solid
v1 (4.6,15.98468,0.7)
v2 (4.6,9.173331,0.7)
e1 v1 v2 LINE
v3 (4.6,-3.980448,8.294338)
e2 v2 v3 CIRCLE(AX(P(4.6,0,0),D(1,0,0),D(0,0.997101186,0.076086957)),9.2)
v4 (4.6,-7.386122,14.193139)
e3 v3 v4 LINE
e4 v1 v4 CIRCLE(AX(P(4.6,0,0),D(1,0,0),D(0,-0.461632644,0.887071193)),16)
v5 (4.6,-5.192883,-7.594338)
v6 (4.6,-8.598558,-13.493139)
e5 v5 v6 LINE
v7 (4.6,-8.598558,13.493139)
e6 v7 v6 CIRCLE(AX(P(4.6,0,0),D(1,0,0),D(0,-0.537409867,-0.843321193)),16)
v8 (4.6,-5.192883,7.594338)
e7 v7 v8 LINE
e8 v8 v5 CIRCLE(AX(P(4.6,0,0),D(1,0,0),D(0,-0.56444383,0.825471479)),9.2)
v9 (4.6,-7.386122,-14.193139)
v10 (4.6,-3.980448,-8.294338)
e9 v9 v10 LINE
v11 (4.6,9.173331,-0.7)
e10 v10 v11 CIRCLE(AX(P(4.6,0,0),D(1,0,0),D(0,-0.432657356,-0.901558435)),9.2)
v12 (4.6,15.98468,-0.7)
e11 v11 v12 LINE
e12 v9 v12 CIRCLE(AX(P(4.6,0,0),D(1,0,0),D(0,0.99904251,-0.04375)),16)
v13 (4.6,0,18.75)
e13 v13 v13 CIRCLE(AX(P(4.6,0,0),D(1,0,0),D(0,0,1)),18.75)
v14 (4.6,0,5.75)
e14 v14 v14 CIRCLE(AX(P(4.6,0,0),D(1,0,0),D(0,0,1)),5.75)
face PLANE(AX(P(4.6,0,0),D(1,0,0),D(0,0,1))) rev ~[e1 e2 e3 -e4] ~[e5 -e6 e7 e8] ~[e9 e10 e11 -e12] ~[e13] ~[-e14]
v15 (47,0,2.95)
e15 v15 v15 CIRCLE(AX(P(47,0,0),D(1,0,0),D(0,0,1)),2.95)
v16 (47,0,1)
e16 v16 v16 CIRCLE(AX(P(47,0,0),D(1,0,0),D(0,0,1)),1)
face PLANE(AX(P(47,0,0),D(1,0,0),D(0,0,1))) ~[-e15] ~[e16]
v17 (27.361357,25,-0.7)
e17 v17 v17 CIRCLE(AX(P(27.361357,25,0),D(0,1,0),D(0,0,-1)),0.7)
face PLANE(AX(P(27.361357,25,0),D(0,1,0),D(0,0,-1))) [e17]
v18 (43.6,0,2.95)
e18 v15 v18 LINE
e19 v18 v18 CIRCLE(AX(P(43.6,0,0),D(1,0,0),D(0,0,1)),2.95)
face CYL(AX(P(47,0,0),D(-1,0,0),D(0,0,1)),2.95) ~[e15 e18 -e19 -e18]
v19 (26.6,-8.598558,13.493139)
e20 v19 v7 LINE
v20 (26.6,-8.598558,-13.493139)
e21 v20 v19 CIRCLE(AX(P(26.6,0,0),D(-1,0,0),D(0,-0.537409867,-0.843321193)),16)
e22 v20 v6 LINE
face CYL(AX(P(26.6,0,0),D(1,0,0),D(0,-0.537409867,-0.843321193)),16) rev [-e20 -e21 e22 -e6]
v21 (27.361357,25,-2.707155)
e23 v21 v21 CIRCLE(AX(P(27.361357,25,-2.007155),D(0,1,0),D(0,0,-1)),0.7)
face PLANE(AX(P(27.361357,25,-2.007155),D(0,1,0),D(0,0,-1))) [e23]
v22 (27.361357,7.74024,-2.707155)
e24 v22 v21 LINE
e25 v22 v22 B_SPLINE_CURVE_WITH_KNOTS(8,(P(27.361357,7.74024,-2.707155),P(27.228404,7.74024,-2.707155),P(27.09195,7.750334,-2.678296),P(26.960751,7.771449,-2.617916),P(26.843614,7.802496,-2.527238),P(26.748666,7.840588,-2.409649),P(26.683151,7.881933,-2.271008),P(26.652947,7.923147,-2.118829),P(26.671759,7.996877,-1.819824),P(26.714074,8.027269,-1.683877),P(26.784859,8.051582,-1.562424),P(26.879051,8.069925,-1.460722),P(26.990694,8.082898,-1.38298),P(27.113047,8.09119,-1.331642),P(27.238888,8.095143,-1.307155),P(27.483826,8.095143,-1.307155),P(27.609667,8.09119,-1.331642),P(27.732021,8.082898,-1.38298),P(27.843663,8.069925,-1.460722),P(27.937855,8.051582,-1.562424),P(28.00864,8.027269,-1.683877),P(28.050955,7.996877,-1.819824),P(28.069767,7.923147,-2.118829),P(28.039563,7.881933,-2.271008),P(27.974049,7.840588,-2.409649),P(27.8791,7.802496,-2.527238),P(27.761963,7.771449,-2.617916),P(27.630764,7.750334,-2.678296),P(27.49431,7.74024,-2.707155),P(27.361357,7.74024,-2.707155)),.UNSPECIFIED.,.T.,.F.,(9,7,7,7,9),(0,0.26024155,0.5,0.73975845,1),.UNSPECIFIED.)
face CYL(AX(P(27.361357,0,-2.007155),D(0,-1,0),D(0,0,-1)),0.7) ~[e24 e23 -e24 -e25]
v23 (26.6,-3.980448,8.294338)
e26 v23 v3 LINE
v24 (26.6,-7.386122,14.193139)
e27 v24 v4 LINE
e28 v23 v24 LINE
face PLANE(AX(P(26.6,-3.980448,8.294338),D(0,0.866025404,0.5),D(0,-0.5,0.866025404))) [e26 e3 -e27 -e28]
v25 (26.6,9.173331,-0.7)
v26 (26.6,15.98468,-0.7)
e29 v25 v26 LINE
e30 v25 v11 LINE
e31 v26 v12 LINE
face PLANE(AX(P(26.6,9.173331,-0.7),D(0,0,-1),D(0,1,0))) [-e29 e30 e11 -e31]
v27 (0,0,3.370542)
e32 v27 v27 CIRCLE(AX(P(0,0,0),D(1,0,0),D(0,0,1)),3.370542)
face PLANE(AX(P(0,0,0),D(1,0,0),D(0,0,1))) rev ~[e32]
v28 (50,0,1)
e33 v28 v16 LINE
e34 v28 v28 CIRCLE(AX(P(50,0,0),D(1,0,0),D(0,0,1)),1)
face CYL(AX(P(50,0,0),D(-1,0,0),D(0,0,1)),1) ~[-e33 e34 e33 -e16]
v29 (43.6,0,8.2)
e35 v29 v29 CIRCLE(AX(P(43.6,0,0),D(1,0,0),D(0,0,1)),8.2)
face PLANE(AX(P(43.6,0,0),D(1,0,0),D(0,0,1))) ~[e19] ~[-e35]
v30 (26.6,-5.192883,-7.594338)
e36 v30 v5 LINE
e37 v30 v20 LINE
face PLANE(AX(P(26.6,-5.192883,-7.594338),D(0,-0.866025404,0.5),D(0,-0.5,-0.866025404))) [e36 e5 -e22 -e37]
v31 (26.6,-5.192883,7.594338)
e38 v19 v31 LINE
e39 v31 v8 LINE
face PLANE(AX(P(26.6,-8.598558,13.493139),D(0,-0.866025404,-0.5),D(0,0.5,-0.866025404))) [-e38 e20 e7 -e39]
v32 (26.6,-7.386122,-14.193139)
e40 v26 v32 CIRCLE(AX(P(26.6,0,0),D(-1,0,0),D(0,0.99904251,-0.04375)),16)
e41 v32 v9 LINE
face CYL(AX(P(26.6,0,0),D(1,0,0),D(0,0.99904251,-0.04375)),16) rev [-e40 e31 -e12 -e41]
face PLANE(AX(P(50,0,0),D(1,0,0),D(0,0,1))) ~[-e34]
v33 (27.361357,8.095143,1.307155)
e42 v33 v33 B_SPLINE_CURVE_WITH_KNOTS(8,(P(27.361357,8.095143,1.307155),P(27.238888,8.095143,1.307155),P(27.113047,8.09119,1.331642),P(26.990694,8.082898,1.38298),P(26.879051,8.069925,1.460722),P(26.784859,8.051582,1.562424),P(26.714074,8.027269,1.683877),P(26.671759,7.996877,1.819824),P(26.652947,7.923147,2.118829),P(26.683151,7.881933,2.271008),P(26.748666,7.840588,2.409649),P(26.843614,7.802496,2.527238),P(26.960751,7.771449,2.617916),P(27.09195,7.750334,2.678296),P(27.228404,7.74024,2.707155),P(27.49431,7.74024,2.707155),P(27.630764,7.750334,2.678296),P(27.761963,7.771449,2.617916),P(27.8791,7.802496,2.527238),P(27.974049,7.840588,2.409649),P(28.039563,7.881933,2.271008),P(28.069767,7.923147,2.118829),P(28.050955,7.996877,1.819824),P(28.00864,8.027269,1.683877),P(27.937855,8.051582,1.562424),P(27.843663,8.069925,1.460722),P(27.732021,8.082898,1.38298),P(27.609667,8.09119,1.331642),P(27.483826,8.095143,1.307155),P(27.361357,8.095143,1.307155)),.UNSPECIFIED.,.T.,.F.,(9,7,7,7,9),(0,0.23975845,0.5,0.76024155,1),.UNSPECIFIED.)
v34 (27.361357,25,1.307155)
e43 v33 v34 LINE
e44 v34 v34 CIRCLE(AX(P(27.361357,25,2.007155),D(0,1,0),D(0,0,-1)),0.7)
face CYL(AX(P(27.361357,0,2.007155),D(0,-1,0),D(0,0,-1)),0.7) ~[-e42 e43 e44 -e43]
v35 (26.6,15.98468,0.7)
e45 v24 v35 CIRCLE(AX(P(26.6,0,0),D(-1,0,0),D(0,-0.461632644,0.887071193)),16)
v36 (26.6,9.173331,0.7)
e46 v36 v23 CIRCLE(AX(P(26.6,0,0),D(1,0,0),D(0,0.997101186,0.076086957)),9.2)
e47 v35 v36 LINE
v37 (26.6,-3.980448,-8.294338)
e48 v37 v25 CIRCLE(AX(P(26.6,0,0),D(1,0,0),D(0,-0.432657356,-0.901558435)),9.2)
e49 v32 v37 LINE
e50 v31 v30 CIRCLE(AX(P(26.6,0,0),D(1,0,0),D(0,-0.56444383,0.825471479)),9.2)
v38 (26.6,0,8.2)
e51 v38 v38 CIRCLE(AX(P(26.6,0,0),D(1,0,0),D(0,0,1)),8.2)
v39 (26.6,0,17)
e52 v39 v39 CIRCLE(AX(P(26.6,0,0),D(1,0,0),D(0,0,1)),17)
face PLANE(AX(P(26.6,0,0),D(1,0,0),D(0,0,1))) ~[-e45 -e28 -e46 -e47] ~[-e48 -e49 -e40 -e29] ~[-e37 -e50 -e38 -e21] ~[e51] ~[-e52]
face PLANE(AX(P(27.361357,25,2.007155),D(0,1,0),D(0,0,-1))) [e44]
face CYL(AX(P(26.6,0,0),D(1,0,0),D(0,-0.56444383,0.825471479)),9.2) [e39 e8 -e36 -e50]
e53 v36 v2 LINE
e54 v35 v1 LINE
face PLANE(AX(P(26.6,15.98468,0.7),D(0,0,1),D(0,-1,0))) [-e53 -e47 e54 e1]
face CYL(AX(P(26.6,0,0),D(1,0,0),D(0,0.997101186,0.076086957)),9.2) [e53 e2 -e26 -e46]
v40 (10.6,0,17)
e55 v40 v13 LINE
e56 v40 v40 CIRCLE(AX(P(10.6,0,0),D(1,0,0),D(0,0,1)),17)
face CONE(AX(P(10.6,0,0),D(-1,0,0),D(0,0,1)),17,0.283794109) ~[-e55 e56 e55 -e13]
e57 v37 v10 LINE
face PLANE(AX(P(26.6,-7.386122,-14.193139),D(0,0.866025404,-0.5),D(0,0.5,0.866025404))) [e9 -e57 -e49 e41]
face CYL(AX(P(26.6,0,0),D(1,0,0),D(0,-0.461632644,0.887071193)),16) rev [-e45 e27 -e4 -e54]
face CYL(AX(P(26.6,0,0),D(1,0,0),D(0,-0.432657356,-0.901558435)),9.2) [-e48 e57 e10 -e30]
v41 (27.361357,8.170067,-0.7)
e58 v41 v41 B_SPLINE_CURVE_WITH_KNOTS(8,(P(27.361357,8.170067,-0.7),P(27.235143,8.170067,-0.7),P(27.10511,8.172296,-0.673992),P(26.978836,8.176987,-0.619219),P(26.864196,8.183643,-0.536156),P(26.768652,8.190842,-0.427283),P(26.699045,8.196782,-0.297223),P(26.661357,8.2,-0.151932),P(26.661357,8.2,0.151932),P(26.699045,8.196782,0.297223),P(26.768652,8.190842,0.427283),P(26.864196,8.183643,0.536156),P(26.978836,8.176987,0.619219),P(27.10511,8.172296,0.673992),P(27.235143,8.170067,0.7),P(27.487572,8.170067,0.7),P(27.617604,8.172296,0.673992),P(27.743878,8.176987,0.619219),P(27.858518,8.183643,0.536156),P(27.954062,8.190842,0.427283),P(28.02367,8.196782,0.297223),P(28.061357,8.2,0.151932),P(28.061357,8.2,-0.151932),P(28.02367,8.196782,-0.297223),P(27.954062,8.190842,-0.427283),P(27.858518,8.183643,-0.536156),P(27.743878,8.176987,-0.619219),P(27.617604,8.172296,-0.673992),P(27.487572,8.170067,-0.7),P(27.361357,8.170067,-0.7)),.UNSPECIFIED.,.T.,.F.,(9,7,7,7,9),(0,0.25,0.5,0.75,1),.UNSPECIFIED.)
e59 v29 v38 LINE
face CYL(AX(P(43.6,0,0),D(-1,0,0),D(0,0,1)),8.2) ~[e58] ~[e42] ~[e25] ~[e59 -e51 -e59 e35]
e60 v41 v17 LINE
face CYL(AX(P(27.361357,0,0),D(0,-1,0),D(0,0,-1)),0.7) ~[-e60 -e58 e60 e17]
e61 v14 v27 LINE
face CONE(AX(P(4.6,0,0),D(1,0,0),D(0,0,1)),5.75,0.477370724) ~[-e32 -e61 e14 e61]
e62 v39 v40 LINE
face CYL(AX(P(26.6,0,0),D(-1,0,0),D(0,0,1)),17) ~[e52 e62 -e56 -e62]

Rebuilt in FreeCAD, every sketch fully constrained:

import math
import FreeCAD as App
import Part
import Sketcher
Q = App.Units.Quantity


def add_polygon(sketch, points):
    """Adds a closed chain of lines whose ends are joined by coincident constraints."""
    first, n = sketch.GeometryCount, len(points)
    for a, b in zip(points, points[1:] + points[:1]):
        sketch.addGeometry(Part.LineSegment(App.Vector(*a, 0), App.Vector(*b, 0)), False)
    for i in range(n):
        sketch.addConstraint(Sketcher.Constraint("Coincident", first + i, 2, first + (i + 1) % n, 1))

doc = App.newDocument("Part")
body = doc.addObject("PartDesign::Body", "Body")

sketch1 = body.newObject("Sketcher::SketchObject", "Sketch")
sketch1.AttachmentSupport = (doc.getObject("XY_Plane"), [""])
sketch1.MapMode = "FlatFace"
add_polygon(sketch1, [(0, 0), (50, 0), (50, 1), (47, 1), (47, 3), (43.6, 3), (43.6, 8.2), (26.6, 8.2), (26.6, 17), (10.6, 17), (4.6, 18.8), (4.6, 5.8), (0, 3.4)])
sketch1.addConstraint(Sketcher.Constraint("Horizontal", 0))
sketch1.addConstraint(Sketcher.Constraint("Vertical", 1))
sketch1.addConstraint(Sketcher.Constraint("Horizontal", 2))
sketch1.addConstraint(Sketcher.Constraint("Vertical", 3))
sketch1.addConstraint(Sketcher.Constraint("Horizontal", 4))
sketch1.addConstraint(Sketcher.Constraint("Vertical", 5))
sketch1.addConstraint(Sketcher.Constraint("Horizontal", 6))
sketch1.addConstraint(Sketcher.Constraint("Vertical", 7))
sketch1.addConstraint(Sketcher.Constraint("Horizontal", 8))
sketch1.addConstraint(Sketcher.Constraint("Vertical", 10))
sketch1.addConstraint(Sketcher.Constraint("Vertical", 12))
sketch1.addConstraint(Sketcher.Constraint("Coincident", 12, 2, -1, 1))
sketch1.addConstraint(Sketcher.Constraint("DistanceX", 0, 1, 0, 2, Q("50 mm")))
sketch1.addConstraint(Sketcher.Constraint("DistanceX", 2, 2, 2, 1, Q("3 mm")))
sketch1.addConstraint(Sketcher.Constraint("DistanceX", 6, 2, 6, 1, Q("17 mm")))
sketch1.addConstraint(Sketcher.Constraint("DistanceX", 8, 2, 8, 1, Q("16 mm")))
sketch1.addConstraint(Sketcher.Constraint("DistanceY", 1, 1, 1, 2, Q("1 mm")))
sketch1.addConstraint(Sketcher.Constraint("DistanceY", 10, 2, 10, 1, Q("13 mm")))
sketch1.addConstraint(Sketcher.Constraint("DistanceX", 4, 2, 4, 1, Q("3.4 mm")))
sketch1.addConstraint(Sketcher.Constraint("DistanceY", 7, 1, 7, 2, Q("8.8 mm")))
sketch1.addConstraint(Sketcher.Constraint("DistanceY", -1, 1, 7, 2, Q("17 mm")))
sketch1.addConstraint(Sketcher.Constraint("DistanceX", 9, 2, 8, 2, Q("6 mm")))
sketch1.addConstraint(Sketcher.Constraint("DistanceY", 3, 1, 3, 2, Q("1.95 mm")))
sketch1.addConstraint(Sketcher.Constraint("DistanceY", 4, 2, 9, 2, Q("15.8 mm")))
sketch1.addConstraint(Sketcher.Constraint("DistanceY", 12, 2, 12, 1, Q("3.370542 mm")))
revolution = body.newObject("PartDesign::Revolution", "Revolution")
revolution.Profile = sketch1
revolution.ReferenceAxis = (sketch1, ["H_Axis"])
revolution.Angle = 360

sketch2 = body.newObject("Sketcher::SketchObject", "Sketch001")
sketch2.AttachmentSupport = (doc.getObject("YZ_Plane"), [""])
sketch2.MapMode = "FlatFace"
sketch2.AttachmentOffset = App.Placement(App.Vector(0, 0, 26.6), App.Rotation())
sketch2.addGeometry(Part.LineSegment(App.Vector(9, 1, 0), App.Vector(16, 1, 0)), False)
sketch2.addGeometry(Part.ArcOfCircle(Part.Circle(App.Vector(0, 0, 0), App.Vector(0, 0, 1), 16), math.radians(3), math.radians(117)), False)
sketch2.addGeometry(Part.LineSegment(App.Vector(-7, 14, 0), App.Vector(-4, 8, 0)), False)
sketch2.addGeometry(Part.ArcOfCircle(Part.Circle(App.Vector(0, 0, 0), App.Vector(0, 0, 1), 9), math.radians(4), math.radians(116)), False)
sketch2.addConstraint(Sketcher.Constraint("Coincident", 0, 2, 1, 1))
sketch2.addConstraint(Sketcher.Constraint("Coincident", 1, 2, 2, 1))
sketch2.addConstraint(Sketcher.Constraint("Coincident", 2, 2, 3, 2))
sketch2.addConstraint(Sketcher.Constraint("Coincident", 3, 1, 0, 1))
sketch2.addConstraint(Sketcher.Constraint("Horizontal", 0))
sketch2.addConstraint(Sketcher.Constraint("Coincident", 1, 3, -1, 1))
sketch2.addConstraint(Sketcher.Constraint("Coincident", 3, 3, -1, 1))
sketch2.addConstraint(Sketcher.Constraint("Radius", 1, Q("16 mm")))
sketch2.addConstraint(Sketcher.Constraint("Radius", 3, Q("9.2 mm")))
sketch2.addConstraint(Sketcher.Constraint("Angle", 2, Q("-60 deg")))
sketch2.addConstraint(Sketcher.Constraint("DistanceY", -1, 1, 0, 2, Q("0.7 mm")))
sketch2.addConstraint(Sketcher.Constraint("DistanceY", 2, 2, 1, 2, Q("5.898801 mm")))
pocket1 = body.newObject("PartDesign::Pocket", "Pocket")
pocket1.Profile = sketch2
pocket1.Type = "ThroughAll"
doc.recompute()

polarpattern = body.newObject("PartDesign::PolarPattern", "PolarPattern")
polarpattern.Originals = [pocket1]
polarpattern.Axis = (doc.getObject("X_Axis"), [""])
polarpattern.Angle = 360
polarpattern.Occurrences = 3
body.Tip = polarpattern

sketch3 = body.newObject("Sketcher::SketchObject", "Sketch002")
sketch3.AttachmentSupport = (doc.getObject("XZ_Plane"), [""])
sketch3.MapMode = "FlatFace"
sketch3.addGeometry(Part.Circle(App.Vector(27.4, 0, 0), App.Vector(0, 0, 1), 0.7), False)
sketch3.addGeometry(Part.Circle(App.Vector(27.4, -2, 0), App.Vector(0, 0, 1), 0.7), False)
sketch3.addGeometry(Part.Circle(App.Vector(27.4, 2, 0), App.Vector(0, 0, 1), 0.7), False)
sketch3.addConstraint(Sketcher.Constraint("Equal", 0, 1))
sketch3.addConstraint(Sketcher.Constraint("Equal", 1, 2))
sketch3.addConstraint(Sketcher.Constraint("Symmetric", 1, 3, 2, 3, -1))
sketch3.addConstraint(Sketcher.Constraint("PointOnObject", 0, 3, -1))
sketch3.addConstraint(Sketcher.Constraint("Vertical", 0, 3, 1, 3))
sketch3.addConstraint(Sketcher.Constraint("Diameter", 0, Q("1.4 mm")))
sketch3.addConstraint(Sketcher.Constraint("DistanceY", 1, 3, 2, 3, Q("4.01431 mm")))
sketch3.addConstraint(Sketcher.Constraint("DistanceX", -1, 1, 0, 3, Q("27.361357 mm")))
pad1 = body.newObject("PartDesign::Pad", "Pad")
pad1.Profile = sketch3
pad1.Length = 25
pad1.Reversed = True

doc.recompute()
